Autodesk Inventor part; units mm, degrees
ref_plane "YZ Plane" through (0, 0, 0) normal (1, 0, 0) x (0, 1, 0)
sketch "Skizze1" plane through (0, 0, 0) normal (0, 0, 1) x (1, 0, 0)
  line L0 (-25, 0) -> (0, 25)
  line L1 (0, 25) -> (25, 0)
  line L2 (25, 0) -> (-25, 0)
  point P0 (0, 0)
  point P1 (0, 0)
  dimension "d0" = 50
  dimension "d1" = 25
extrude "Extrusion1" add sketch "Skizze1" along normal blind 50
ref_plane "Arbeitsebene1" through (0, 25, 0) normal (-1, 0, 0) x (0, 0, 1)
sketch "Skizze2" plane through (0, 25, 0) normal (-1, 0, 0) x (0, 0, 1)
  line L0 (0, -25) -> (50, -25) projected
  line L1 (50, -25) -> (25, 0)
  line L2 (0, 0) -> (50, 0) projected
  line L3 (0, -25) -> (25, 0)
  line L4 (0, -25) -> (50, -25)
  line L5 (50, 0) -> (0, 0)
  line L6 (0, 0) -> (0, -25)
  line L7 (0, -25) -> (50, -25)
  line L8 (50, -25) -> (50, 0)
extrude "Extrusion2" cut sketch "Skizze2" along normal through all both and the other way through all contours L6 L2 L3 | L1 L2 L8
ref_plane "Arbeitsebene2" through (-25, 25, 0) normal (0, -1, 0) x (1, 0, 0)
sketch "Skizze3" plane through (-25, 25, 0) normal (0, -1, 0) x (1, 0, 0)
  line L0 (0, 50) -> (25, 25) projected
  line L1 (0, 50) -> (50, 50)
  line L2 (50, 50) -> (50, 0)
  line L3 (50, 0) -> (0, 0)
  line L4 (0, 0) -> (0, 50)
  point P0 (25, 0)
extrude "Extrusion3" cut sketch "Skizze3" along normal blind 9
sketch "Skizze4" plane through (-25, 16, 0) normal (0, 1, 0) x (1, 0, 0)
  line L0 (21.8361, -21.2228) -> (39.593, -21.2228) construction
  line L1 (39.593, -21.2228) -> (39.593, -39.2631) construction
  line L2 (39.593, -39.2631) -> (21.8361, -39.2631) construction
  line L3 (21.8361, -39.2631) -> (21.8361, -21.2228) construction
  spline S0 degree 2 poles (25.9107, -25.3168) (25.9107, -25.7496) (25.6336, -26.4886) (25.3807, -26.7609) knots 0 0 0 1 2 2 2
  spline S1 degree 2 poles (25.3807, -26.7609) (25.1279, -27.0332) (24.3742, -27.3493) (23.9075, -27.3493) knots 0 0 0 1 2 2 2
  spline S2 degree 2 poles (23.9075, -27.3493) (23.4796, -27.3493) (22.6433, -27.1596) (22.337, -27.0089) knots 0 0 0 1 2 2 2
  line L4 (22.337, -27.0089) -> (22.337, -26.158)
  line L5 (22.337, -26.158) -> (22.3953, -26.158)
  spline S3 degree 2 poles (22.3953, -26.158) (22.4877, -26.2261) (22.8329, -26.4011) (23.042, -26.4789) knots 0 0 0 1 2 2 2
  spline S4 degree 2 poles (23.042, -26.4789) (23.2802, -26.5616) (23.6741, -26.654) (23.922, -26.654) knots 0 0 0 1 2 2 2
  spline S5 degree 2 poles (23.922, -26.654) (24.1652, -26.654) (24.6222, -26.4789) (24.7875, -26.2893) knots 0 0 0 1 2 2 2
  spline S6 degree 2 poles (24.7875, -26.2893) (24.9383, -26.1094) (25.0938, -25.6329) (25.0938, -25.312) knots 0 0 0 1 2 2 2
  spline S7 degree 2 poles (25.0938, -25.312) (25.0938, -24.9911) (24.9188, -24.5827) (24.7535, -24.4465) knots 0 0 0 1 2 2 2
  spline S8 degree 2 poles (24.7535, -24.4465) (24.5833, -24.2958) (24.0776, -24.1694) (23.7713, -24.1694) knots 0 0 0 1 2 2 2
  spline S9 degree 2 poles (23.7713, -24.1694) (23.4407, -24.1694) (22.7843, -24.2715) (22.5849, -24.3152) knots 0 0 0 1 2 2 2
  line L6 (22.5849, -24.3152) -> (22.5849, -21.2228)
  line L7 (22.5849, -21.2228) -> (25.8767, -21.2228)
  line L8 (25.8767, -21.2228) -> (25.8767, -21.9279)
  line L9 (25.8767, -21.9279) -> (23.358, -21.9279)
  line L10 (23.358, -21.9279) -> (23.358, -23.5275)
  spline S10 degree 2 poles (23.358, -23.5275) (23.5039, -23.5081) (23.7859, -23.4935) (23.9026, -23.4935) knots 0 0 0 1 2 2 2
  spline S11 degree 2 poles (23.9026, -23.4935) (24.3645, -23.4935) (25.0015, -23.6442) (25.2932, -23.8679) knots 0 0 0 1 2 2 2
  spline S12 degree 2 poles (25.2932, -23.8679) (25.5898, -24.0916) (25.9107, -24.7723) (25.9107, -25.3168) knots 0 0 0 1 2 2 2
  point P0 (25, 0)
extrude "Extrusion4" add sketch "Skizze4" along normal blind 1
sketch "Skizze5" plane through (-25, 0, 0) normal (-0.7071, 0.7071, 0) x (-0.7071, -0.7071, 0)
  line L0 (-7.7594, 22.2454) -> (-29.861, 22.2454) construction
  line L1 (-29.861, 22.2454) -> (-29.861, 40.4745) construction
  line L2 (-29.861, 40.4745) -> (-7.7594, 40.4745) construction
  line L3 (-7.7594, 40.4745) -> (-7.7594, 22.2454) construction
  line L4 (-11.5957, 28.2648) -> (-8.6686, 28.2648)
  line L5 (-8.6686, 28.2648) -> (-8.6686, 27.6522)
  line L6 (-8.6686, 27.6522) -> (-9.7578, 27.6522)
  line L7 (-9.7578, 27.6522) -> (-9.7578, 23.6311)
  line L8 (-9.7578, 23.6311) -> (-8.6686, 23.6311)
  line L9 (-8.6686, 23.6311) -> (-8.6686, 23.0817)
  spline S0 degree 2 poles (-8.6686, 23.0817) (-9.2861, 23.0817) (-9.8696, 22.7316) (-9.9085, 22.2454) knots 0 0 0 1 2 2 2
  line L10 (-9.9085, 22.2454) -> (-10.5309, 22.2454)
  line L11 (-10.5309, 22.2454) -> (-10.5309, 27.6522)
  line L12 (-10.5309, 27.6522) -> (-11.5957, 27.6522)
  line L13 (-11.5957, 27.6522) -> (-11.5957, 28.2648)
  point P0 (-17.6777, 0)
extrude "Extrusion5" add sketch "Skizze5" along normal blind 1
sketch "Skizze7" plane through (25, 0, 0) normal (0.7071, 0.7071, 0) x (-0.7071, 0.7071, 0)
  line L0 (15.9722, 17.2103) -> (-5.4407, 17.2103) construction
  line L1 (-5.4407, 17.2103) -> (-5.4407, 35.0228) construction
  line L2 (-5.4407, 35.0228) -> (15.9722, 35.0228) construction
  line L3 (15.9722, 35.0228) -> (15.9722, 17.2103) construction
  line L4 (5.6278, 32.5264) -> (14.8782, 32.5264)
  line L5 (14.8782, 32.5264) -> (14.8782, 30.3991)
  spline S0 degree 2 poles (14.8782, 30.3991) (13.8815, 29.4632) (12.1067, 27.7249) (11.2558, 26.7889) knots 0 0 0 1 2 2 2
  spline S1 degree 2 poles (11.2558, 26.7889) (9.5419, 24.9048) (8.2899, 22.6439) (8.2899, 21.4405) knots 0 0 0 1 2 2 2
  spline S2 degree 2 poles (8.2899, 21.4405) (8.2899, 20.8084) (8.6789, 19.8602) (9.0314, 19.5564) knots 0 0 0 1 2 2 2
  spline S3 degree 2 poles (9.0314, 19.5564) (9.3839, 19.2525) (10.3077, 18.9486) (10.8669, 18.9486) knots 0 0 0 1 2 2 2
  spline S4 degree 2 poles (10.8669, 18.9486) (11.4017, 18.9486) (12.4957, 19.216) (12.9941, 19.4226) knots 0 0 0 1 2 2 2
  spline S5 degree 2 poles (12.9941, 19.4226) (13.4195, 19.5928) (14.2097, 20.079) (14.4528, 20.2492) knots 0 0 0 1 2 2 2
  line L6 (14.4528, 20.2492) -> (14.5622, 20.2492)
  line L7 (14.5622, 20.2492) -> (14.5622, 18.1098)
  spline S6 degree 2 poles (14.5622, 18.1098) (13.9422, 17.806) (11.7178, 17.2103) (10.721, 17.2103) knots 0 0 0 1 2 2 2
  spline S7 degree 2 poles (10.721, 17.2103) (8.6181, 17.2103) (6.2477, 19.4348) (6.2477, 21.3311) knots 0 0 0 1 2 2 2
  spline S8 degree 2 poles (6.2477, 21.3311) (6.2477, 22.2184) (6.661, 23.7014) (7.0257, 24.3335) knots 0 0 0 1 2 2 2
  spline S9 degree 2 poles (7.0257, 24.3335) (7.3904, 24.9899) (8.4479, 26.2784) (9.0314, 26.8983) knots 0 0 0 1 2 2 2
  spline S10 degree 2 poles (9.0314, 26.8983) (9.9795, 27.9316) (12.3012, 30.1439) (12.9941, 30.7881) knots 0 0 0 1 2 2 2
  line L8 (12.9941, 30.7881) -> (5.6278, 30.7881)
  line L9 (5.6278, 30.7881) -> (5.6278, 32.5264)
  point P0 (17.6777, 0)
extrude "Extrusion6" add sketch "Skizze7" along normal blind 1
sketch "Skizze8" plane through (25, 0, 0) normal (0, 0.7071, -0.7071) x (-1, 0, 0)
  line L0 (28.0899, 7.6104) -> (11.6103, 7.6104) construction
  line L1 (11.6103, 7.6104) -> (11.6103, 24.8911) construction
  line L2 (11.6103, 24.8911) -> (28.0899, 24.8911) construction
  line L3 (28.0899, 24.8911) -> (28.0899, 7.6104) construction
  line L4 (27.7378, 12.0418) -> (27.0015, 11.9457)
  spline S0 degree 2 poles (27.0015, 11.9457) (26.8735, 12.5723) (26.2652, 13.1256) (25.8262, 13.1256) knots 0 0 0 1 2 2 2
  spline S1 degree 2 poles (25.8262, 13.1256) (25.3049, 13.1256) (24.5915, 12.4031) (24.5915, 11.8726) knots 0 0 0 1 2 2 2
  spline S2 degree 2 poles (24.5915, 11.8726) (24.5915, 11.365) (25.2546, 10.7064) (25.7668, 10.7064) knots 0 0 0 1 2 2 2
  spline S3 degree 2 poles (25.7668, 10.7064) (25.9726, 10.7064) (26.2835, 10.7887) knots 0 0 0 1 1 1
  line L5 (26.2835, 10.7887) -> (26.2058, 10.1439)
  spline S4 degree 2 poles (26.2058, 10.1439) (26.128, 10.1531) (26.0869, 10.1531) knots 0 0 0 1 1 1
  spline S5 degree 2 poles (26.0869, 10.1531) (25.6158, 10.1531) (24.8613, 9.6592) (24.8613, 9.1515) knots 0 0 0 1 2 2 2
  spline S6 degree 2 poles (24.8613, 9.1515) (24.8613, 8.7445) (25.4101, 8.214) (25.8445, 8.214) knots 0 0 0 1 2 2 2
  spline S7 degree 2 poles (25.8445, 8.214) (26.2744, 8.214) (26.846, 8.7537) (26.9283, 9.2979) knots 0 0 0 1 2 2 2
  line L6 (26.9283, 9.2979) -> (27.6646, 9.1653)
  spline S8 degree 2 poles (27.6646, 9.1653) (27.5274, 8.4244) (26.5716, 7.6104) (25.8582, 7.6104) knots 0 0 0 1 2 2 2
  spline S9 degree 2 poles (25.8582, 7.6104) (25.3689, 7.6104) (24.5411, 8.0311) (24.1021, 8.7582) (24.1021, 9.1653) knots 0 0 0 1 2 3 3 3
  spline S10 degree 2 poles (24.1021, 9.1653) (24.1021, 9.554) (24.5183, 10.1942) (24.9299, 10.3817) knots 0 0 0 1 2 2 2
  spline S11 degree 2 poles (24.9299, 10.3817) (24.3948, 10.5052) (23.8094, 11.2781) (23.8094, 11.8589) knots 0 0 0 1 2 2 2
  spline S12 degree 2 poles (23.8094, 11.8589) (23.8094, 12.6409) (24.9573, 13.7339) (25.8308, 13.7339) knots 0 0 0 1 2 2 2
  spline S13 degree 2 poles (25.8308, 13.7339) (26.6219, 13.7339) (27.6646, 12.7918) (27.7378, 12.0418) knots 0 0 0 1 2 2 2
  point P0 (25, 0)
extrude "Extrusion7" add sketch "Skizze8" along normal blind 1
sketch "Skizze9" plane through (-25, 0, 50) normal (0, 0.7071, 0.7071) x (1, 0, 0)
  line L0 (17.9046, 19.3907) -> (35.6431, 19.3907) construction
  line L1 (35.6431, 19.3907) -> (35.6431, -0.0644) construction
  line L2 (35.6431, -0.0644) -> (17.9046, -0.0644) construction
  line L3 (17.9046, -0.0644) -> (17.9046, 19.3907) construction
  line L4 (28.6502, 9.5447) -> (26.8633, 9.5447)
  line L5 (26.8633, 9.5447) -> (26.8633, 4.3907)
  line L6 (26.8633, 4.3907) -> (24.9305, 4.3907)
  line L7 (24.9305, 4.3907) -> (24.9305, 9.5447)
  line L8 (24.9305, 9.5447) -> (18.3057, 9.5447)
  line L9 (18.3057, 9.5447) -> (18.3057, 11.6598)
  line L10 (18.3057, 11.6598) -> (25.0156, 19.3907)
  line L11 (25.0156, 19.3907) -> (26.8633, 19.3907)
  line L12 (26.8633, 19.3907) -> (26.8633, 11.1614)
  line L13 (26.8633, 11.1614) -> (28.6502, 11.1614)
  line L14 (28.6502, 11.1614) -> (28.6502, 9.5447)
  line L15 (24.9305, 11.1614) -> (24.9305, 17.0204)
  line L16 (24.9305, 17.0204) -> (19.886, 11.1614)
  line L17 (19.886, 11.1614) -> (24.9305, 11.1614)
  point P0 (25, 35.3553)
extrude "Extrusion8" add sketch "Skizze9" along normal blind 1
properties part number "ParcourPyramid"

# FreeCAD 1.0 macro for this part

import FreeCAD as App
import Part
import Sketcher

doc = App.newDocument("Part")
body = doc.addObject("PartDesign::Body", "Body")

sketch1 = body.newObject("Sketcher::SketchObject", "Sketch")
sketch1.AttachmentSupport = (doc.getObject("XY_Plane"), [""])
sketch1.MapMode = "FlatFace"
sketch1.addGeometry([
    Part.LineSegment(App.Vector(0, 25, 0), App.Vector(-25, 0, 0)),
    Part.LineSegment(App.Vector(-25, 0, 0), App.Vector(25, 0, 0)),
    Part.LineSegment(App.Vector(25, 0, 0), App.Vector(0, 25, 0)),
], False)
sketch1.addConstraint([
    Sketcher.Constraint("Coincident", 0, 2, 1, 1),
    Sketcher.Constraint("Coincident", 1, 2, 2, 1),
    Sketcher.Constraint("Coincident", 2, 2, 0, 1),
    Sketcher.Constraint("Horizontal", 1),
    Sketcher.Constraint("Symmetric", 0, 2, 1, 2, -1, 1),
    Sketcher.Constraint("PointOnObject", 2, 2, -2),
    Sketcher.Constraint("Perpendicular", 0, 2),
    Sketcher.Constraint("DistanceX", 1, 1, 1, 2, 50.0),
])
pad1 = body.newObject("PartDesign::Pad", "Pad")
pad1.Profile = sketch1
pad1.Length = 50

sketch2 = body.newObject("Sketcher::SketchObject", "Sketch001")
sketch2.AttachmentSupport = (doc.getObject("YZ_Plane"), [""])
sketch2.MapMode = "FlatFace"
sketch2.addGeometry([
    Part.LineSegment(App.Vector(25, 0, 0), App.Vector(0, 0, 0)),
    Part.LineSegment(App.Vector(0, 0, 0), App.Vector(25, 25, 0)),
    Part.LineSegment(App.Vector(25, 25, 0), App.Vector(25, 0, 0)),
    Part.LineSegment(App.Vector(25, 25, 0), App.Vector(0, 50, 0)),
    Part.LineSegment(App.Vector(0, 50, 0), App.Vector(25, 50, 0)),
    Part.LineSegment(App.Vector(25, 50, 0), App.Vector(25, 25, 0)),
], False)
sketch2.addConstraint([
    Sketcher.Constraint("Coincident", 0, 2, 1, 1),
    Sketcher.Constraint("Coincident", 1, 2, 2, 1),
    Sketcher.Constraint("Coincident", 2, 2, 0, 1),
    Sketcher.Constraint("Coincident", 3, 2, 4, 1),
    Sketcher.Constraint("Coincident", 4, 2, 5, 1),
    Sketcher.Constraint("Coincident", 5, 2, 3, 1),
    Sketcher.Constraint("Horizontal", 0),
    Sketcher.Constraint("Vertical", 2),
    Sketcher.Constraint("Horizontal", 4),
    Sketcher.Constraint("Vertical", 5),
    Sketcher.Constraint("Coincident", 0, 2, -1, 1),
    Sketcher.Constraint("Coincident", 5, 2, 1, 2),
    Sketcher.Constraint("PointOnObject", 3, 2, -2),
    Sketcher.Constraint("Perpendicular", 1, 3),
    Sketcher.Constraint("Equal", 4, 2),
    Sketcher.Constraint("DistanceX", 0, 2, 0, 1, 25.0),
])
pocket1 = body.newObject("PartDesign::Pocket", "Pocket")
pocket1.Profile = sketch2
pocket1.Type = "ThroughAll"
pocket1.Midplane = True

sketch3 = body.newObject("Sketcher::SketchObject", "Sketch002")
sketch3.AttachmentSupport = (doc.getObject("XZ_Plane"), [""])
sketch3.MapMode = "FlatFace"
sketch3.AttachmentOffset = App.Placement(App.Vector(0, 0, -25), App.Rotation())
sketch3.addGeometry([
    Part.LineSegment(App.Vector(25, 50, 0), App.Vector(-25, 50, 0)),
    Part.LineSegment(App.Vector(-25, 50, 0), App.Vector(-25, 0, 0)),
    Part.LineSegment(App.Vector(-25, 0, 0), App.Vector(25, 0, 0)),
    Part.LineSegment(App.Vector(25, 0, 0), App.Vector(25, 50, 0)),
], False)
sketch3.addConstraint([
    Sketcher.Constraint("Coincident", 0, 2, 1, 1),
    Sketcher.Constraint("Coincident", 1, 2, 2, 1),
    Sketcher.Constraint("Coincident", 2, 2, 3, 1),
    Sketcher.Constraint("Coincident", 3, 2, 0, 1),
    Sketcher.Constraint("Horizontal", 0),
    Sketcher.Constraint("Vertical", 1),
    Sketcher.Constraint("Horizontal", 2),
    Sketcher.Constraint("Vertical", 3),
    Sketcher.Constraint("Symmetric", 1, 2, 2, 2, -1, 1),
    Sketcher.Constraint("Equal", 2, 1),
    Sketcher.Constraint("DistanceX", 0, 2, 0, 1, 50.0),
])
pocket2 = body.newObject("PartDesign::Pocket", "Pocket001")
pocket2.Profile = sketch3
pocket2.Length = 9
pocket2.Reversed = True

sketch4 = body.newObject("Sketcher::SketchObject", "Sketch003")
sketch4.AttachmentSupport = (doc.getObject("XZ_Plane"), [""])
sketch4.MapMode = "FlatFace"
sketch4.AttachmentOffset = App.Placement(App.Vector(0, 0, -16), App.Rotation())
sketch4.addGeometry([
    Part.BSplineCurve([App.Vector(0.9107, 25.3168, 0), App.Vector(0.9107, 25.7496, 0), App.Vector(0.6336, 26.4886, 0), App.Vector(0.3807, 26.7609, 0)], [3, 1, 3], [0, 1, 2], False, 2, [1, 1, 1, 1], False),
    Part.BSplineCurve([App.Vector(0.2932, 23.8679, 0), App.Vector(0.5898, 24.0916, 0), App.Vector(0.9107, 24.7723, 0), App.Vector(0.9107, 25.3168, 0)], [3, 1, 3], [0, 1, 2], False, 2, [1, 1, 1, 1], False),
    Part.BSplineCurve([App.Vector(-1.0974, 23.4935, 0), App.Vector(-0.6355, 23.4935, 0), App.Vector(0.0015, 23.6442, 0), App.Vector(0.2932, 23.8679, 0)], [3, 1, 3], [0, 1, 2], False, 2, [1, 1, 1, 1], False),
    Part.BSplineCurve([App.Vector(-1.642, 23.5275, 0), App.Vector(-1.4961, 23.5081, 0), App.Vector(-1.2141, 23.4935, 0), App.Vector(-1.0974, 23.4935, 0)], [3, 1, 3], [0, 1, 2], False, 2, [1, 1, 1, 1], False),
    Part.LineSegment(App.Vector(-1.642, 23.5275, 0), App.Vector(-1.642, 21.9279, 0)),
    Part.LineSegment(App.Vector(-1.642, 21.9279, 0), App.Vector(0.8767, 21.9279, 0)),
    Part.LineSegment(App.Vector(0.8767, 21.9279, 0), App.Vector(0.8767, 21.2228, 0)),
    Part.LineSegment(App.Vector(0.8767, 21.2228, 0), App.Vector(-2.4151, 21.2228, 0)),
    Part.LineSegment(App.Vector(-2.4151, 21.2228, 0), App.Vector(-2.4151, 24.3152, 0)),
    Part.BSplineCurve([App.Vector(-1.2287, 24.1694, 0), App.Vector(-1.5593, 24.1694, 0), App.Vector(-2.2157, 24.2715, 0), App.Vector(-2.4151, 24.3152, 0)], [3, 1, 3], [0, 1, 2], False, 2, [1, 1, 1, 1], False),
    Part.BSplineCurve([App.Vector(-0.2465, 24.4465, 0), App.Vector(-0.4167, 24.2958, 0), App.Vector(-0.9224, 24.1694, 0), App.Vector(-1.2287, 24.1694, 0)], [3, 1, 3], [0, 1, 2], False, 2, [1, 1, 1, 1], False),
    Part.BSplineCurve([App.Vector(0.0938, 25.312, 0), App.Vector(0.0938, 24.9911, 0), App.Vector(-0.0812, 24.5827, 0), App.Vector(-0.2465, 24.4465, 0)], [3, 1, 3], [0, 1, 2], False, 2, [1, 1, 1, 1], False),
    Part.BSplineCurve([App.Vector(-0.2125, 26.2893, 0), App.Vector(-0.0617, 26.1094, 0), App.Vector(0.0938, 25.6329, 0), App.Vector(0.0938, 25.312, 0)], [3, 1, 3], [0, 1, 2], False, 2, [1, 1, 1, 1], False),
    Part.BSplineCurve([App.Vector(-1.078, 26.654, 0), App.Vector(-0.8348, 26.654, 0), App.Vector(-0.3778, 26.4789, 0), App.Vector(-0.2125, 26.2893, 0)], [3, 1, 3], [0, 1, 2], False, 2, [1, 1, 1, 1], False),
    Part.BSplineCurve([App.Vector(-1.958, 26.4789, 0), App.Vector(-1.7198, 26.5616, 0), App.Vector(-1.3259, 26.654, 0), App.Vector(-1.078, 26.654, 0)], [3, 1, 3], [0, 1, 2], False, 2, [1, 1, 1, 1], False),
    Part.BSplineCurve([App.Vector(-2.6047, 26.158, 0), App.Vector(-2.5123, 26.2261, 0), App.Vector(-2.1671, 26.4011, 0), App.Vector(-1.958, 26.4789, 0)], [3, 1, 3], [0, 1, 2], False, 2, [1, 1, 1, 1], False),
    Part.LineSegment(App.Vector(-2.6047, 26.158, 0), App.Vector(-2.663, 26.158, 0)),
    Part.LineSegment(App.Vector(-2.663, 26.158, 0), App.Vector(-2.663, 27.0089, 0)),
    Part.BSplineCurve([App.Vector(-1.0925, 27.3493, 0), App.Vector(-1.5204, 27.3493, 0), App.Vector(-2.3567, 27.1596, 0), App.Vector(-2.663, 27.0089, 0)], [3, 1, 3], [0, 1, 2], False, 2, [1, 1, 1, 1], False),
    Part.BSplineCurve([App.Vector(0.3807, 26.7609, 0), App.Vector(0.1279, 27.0332, 0), App.Vector(-0.6258, 27.3493, 0), App.Vector(-1.0925, 27.3493, 0)], [3, 1, 3], [0, 1, 2], False, 2, [1, 1, 1, 1], False),
], False)
sketch4.addConstraint([
    Sketcher.Constraint("Block", 0),
    Sketcher.Constraint("Block", 1),
    Sketcher.Constraint("Block", 2),
    Sketcher.Constraint("Block", 3),
    Sketcher.Constraint("Block", 9),
    Sketcher.Constraint("Block", 10),
    Sketcher.Constraint("Block", 11),
    Sketcher.Constraint("Block", 12),
    Sketcher.Constraint("Block", 13),
    Sketcher.Constraint("Block", 14),
    Sketcher.Constraint("Block", 15),
    Sketcher.Constraint("Block", 18),
    Sketcher.Constraint("Block", 19),
    Sketcher.Constraint("Coincident", 3, 1, 4, 1),
    Sketcher.Constraint("Coincident", 4, 2, 5, 1),
    Sketcher.Constraint("Coincident", 5, 2, 6, 1),
    Sketcher.Constraint("Coincident", 6, 2, 7, 1),
    Sketcher.Constraint("Coincident", 7, 2, 8, 1),
    Sketcher.Constraint("Coincident", 8, 2, 9, 2),
    Sketcher.Constraint("Coincident", 15, 1, 16, 1),
    Sketcher.Constraint("Coincident", 16, 2, 17, 1),
    Sketcher.Constraint("Coincident", 17, 2, 18, 2),
    Sketcher.Constraint("Vertical", 4),
    Sketcher.Constraint("Horizontal", 5),
    Sketcher.Constraint("Vertical", 6),
    Sketcher.Constraint("Horizontal", 7),
    Sketcher.Constraint("Vertical", 8),
    Sketcher.Constraint("Horizontal", 16),
    Sketcher.Constraint("Vertical", 17),
    Sketcher.Constraint("DistanceY", 6, 2, 6, 1, 0.705),
    Sketcher.Constraint("DistanceY", 4, 2, 16, 2, 4.23),
    Sketcher.Constraint("DistanceX", 5, 1, 5, 2, 2.5187),
])
pad2 = body.newObject("PartDesign::Pad", "Pad001")
pad2.Profile = sketch4
pad2.Length = 1
pad2.Reversed = True

sketch5 = body.newObject("Sketcher::SketchObject", "Sketch004")
sketch5.Placement = App.Placement(App.Vector(-25, 0, 0), App.Rotation(App.Vector(-0.707106781, -0.707106781, 0), App.Vector(0, 0, 0.999999999), App.Vector(-0.707106781, 0.707106781, 0), "ZXY"))
sketch5.addGeometry([
    Part.LineSegment(App.Vector(-8.6686, 28.2648, 0), App.Vector(-11.5957, 28.2648, 0)),
    Part.LineSegment(App.Vector(-11.5957, 28.2648, 0), App.Vector(-11.5957, 27.6522, 0)),
    Part.LineSegment(App.Vector(-11.5957, 27.6522, 0), App.Vector(-10.5309, 27.6522, 0)),
    Part.LineSegment(App.Vector(-10.5309, 27.6522, 0), App.Vector(-10.5309, 22.2454, 0)),
    Part.LineSegment(App.Vector(-10.5309, 22.2454, 0), App.Vector(-9.9085, 22.2454, 0)),
    Part.BSplineCurve([App.Vector(-8.6686, 23.0817, 0), App.Vector(-9.2861, 23.0817, 0), App.Vector(-9.8696, 22.7316, 0), App.Vector(-9.9085, 22.2454, 0)], [3, 1, 3], [0, 1, 2], False, 2, [1, 1, 1, 1], False),
    Part.LineSegment(App.Vector(-8.6686, 23.0817, 0), App.Vector(-8.6686, 23.6311, 0)),
    Part.LineSegment(App.Vector(-8.6686, 23.6311, 0), App.Vector(-9.7578, 23.6311, 0)),
    Part.LineSegment(App.Vector(-9.7578, 23.6311, 0), App.Vector(-9.7578, 27.6522, 0)),
    Part.LineSegment(App.Vector(-9.7578, 27.6522, 0), App.Vector(-8.6686, 27.6522, 0)),
    Part.LineSegment(App.Vector(-8.6686, 27.6522, 0), App.Vector(-8.6686, 28.2648, 0)),
], False)
sketch5.addConstraint([
    Sketcher.Constraint("Block", 5),
    Sketcher.Constraint("Coincident", 0, 2, 1, 1),
    Sketcher.Constraint("Coincident", 1, 2, 2, 1),
    Sketcher.Constraint("Coincident", 2, 2, 3, 1),
    Sketcher.Constraint("Coincident", 3, 2, 4, 1),
    Sketcher.Constraint("Coincident", 4, 2, 5, 2),
    Sketcher.Constraint("Coincident", 5, 1, 6, 1),
    Sketcher.Constraint("Coincident", 6, 2, 7, 1),
    Sketcher.Constraint("Coincident", 7, 2, 8, 1),
    Sketcher.Constraint("Coincident", 8, 2, 9, 1),
    Sketcher.Constraint("Coincident", 9, 2, 10, 1),
    Sketcher.Constraint("Coincident", 10, 2, 0, 1),
    Sketcher.Constraint("Horizontal", 0),
    Sketcher.Constraint("Vertical", 1),
    Sketcher.Constraint("Horizontal", 2),
    Sketcher.Constraint("Vertical", 3),
    Sketcher.Constraint("Horizontal", 4),
    Sketcher.Constraint("Vertical", 6),
    Sketcher.Constraint("Horizontal", 7),
    Sketcher.Constraint("Vertical", 8),
    Sketcher.Constraint("Horizontal", 9),
    Sketcher.Constraint("Vertical", 10),
    Sketcher.Constraint("Horizontal", 2, 2, 8, 2),
    Sketcher.Constraint("Vertical", 6, 2, 9, 2),
    Sketcher.Constraint("DistanceX", 0, 2, 0, 1, 2.927),
    Sketcher.Constraint("DistanceY", 8, 1, 8, 2, 4.021),
    Sketcher.Constraint("DistanceX", 2, 1, 2, 2, 1.0648),
    Sketcher.Constraint("DistanceX", 7, 2, 7, 1, 1.0892),
    Sketcher.Constraint("DistanceY", 1, 2, 1, 1, 0.6126),
    Sketcher.Constraint("DistanceY", 3, 2, 3, 1, 5.4068),
])
pad3 = body.newObject("PartDesign::Pad", "Pad002")
pad3.Profile = sketch5
pad3.Length = 1

sketch6 = body.newObject("Sketcher::SketchObject", "Sketch005")
sketch6.Placement = App.Placement(App.Vector(25, 0, 0), App.Rotation(App.Vector(-0.707106781, 0.707106781, 0), App.Vector(0, 0, 0.999999999), App.Vector(0.707106781, 0.707106781, 0), "ZXY"))
sketch6.addGeometry([
    Part.LineSegment(App.Vector(14.8782, 32.5264, 0), App.Vector(5.6278, 32.5264, 0)),
    Part.LineSegment(App.Vector(5.6278, 32.5264, 0), App.Vector(5.6278, 30.7881, 0)),
    Part.LineSegment(App.Vector(5.6278, 30.7881, 0), App.Vector(12.9941, 30.7881, 0)),
    Part.BSplineCurve([App.Vector(9.0314, 26.8983, 0), App.Vector(9.9795, 27.9316, 0), App.Vector(12.3012, 30.1439, 0), App.Vector(12.9941, 30.7881, 0)], [3, 1, 3], [0, 1, 2], False, 2, [1, 1, 1, 1], False),
    Part.BSplineCurve([App.Vector(7.0257, 24.3335, 0), App.Vector(7.3904, 24.9899, 0), App.Vector(8.4479, 26.2784, 0), App.Vector(9.0314, 26.8983, 0)], [3, 1, 3], [0, 1, 2], False, 2, [1, 1, 1, 1], False),
    Part.BSplineCurve([App.Vector(6.2477, 21.3311, 0), App.Vector(6.2477, 22.2184, 0), App.Vector(6.661, 23.7014, 0), App.Vector(7.0257, 24.3335, 0)], [3, 1, 3], [0, 1, 2], False, 2, [1, 1, 1, 1], False),
    Part.BSplineCurve([App.Vector(10.721, 17.2103, 0), App.Vector(8.6181, 17.2103, 0), App.Vector(6.2477, 19.4348, 0), App.Vector(6.2477, 21.3311, 0)], [3, 1, 3], [0, 1, 2], False, 2, [1, 1, 1, 1], False),
    Part.BSplineCurve([App.Vector(14.5622, 18.1098, 0), App.Vector(13.9422, 17.806, 0), App.Vector(11.7178, 17.2103, 0), App.Vector(10.721, 17.2103, 0)], [3, 1, 3], [0, 1, 2], False, 2, [1, 1, 1, 1], False),
    Part.LineSegment(App.Vector(14.5622, 18.1098, 0), App.Vector(14.5622, 20.2492, 0)),
    Part.LineSegment(App.Vector(14.5622, 20.2492, 0), App.Vector(14.4528, 20.2492, 0)),
    Part.BSplineCurve([App.Vector(12.9941, 19.4226, 0), App.Vector(13.4195, 19.5928, 0), App.Vector(14.2097, 20.079, 0), App.Vector(14.4528, 20.2492, 0)], [3, 1, 3], [0, 1, 2], False, 2, [1, 1, 1, 1], False),
    Part.BSplineCurve([App.Vector(10.8669, 18.9486, 0), App.Vector(11.4017, 18.9486, 0), App.Vector(12.4957, 19.216, 0), App.Vector(12.9941, 19.4226, 0)], [3, 1, 3], [0, 1, 2], False, 2, [1, 1, 1, 1], False),
    Part.BSplineCurve([App.Vector(9.0314, 19.5564, 0), App.Vector(9.3839, 19.2525, 0), App.Vector(10.3077, 18.9486, 0), App.Vector(10.8669, 18.9486, 0)], [3, 1, 3], [0, 1, 2], False, 2, [1, 1, 1, 1], False),
    Part.BSplineCurve([App.Vector(8.2899, 21.4405, 0), App.Vector(8.2899, 20.8084, 0), App.Vector(8.6789, 19.8602, 0), App.Vector(9.0314, 19.5564, 0)], [3, 1, 3], [0, 1, 2], False, 2, [1, 1, 1, 1], False),
    Part.BSplineCurve([App.Vector(11.2558, 26.7889, 0), App.Vector(9.5419, 24.9048, 0), App.Vector(8.2899, 22.6439, 0), App.Vector(8.2899, 21.4405, 0)], [3, 1, 3], [0, 1, 2], False, 2, [1, 1, 1, 1], False),
    Part.BSplineCurve([App.Vector(14.8782, 30.3991, 0), App.Vector(13.8815, 29.4632, 0), App.Vector(12.1067, 27.7249, 0), App.Vector(11.2558, 26.7889, 0)], [3, 1, 3], [0, 1, 2], False, 2, [1, 1, 1, 1], False),
    Part.LineSegment(App.Vector(14.8782, 30.3991, 0), App.Vector(14.8782, 32.5264, 0)),
], False)
sketch6.addConstraint([
    Sketcher.Constraint("Block", 3),
    Sketcher.Constraint("Block", 4),
    Sketcher.Constraint("Block", 5),
    Sketcher.Constraint("Block", 6),
    Sketcher.Constraint("Block", 7),
    Sketcher.Constraint("Block", 10),
    Sketcher.Constraint("Block", 11),
    Sketcher.Constraint("Block", 12),
    Sketcher.Constraint("Block", 13),
    Sketcher.Constraint("Block", 14),
    Sketcher.Constraint("Block", 15),
    Sketcher.Constraint("Coincident", 0, 2, 1, 1),
    Sketcher.Constraint("Coincident", 1, 2, 2, 1),
    Sketcher.Constraint("Coincident", 2, 2, 3, 2),
    Sketcher.Constraint("Coincident", 7, 1, 8, 1),
    Sketcher.Constraint("Coincident", 8, 2, 9, 1),
    Sketcher.Constraint("Coincident", 9, 2, 10, 2),
    Sketcher.Constraint("Coincident", 15, 1, 16, 1),
    Sketcher.Constraint("Coincident", 16, 2, 0, 1),
    Sketcher.Constraint("Horizontal", 0),
    Sketcher.Constraint("Vertical", 1),
    Sketcher.Constraint("Horizontal", 2),
    Sketcher.Constraint("Vertical", 8),
    Sketcher.Constraint("Horizontal", 9),
    Sketcher.Constraint("Vertical", 16),
    Sketcher.Constraint("DistanceX", 0, 2, 0, 1, 9.2504),
    Sketcher.Constraint("DistanceY", 1, 2, 1, 1, 1.7383),
])
pad4 = body.newObject("PartDesign::Pad", "Pad003")
pad4.Profile = sketch6
pad4.Length = 1

sketch7 = body.newObject("Sketcher::SketchObject", "Sketch006")
sketch7.Placement = App.Placement(App.Vector(25, 0, 0), App.Rotation(App.Vector(-1, 0, 0), App.Vector(0, 0.707106781, 0.707106781), App.Vector(0, 0.707106781, -0.707106781), "ZXY"))
sketch7.addGeometry([
    Part.LineSegment(App.Vector(27.0015, 11.9457, 0), App.Vector(27.7378, 12.0418, 0)),
    Part.BSplineCurve([App.Vector(25.8308, 13.7339, 0), App.Vector(26.6219, 13.7339, 0), App.Vector(27.6646, 12.7918, 0), App.Vector(27.7378, 12.0418, 0)], [3, 1, 3], [0, 1, 2], False, 2, [1, 1, 1, 1], False),
    Part.BSplineCurve([App.Vector(23.8094, 11.8589, 0), App.Vector(23.8094, 12.6409, 0), App.Vector(24.9573, 13.7339, 0), App.Vector(25.8308, 13.7339, 0)], [3, 1, 3], [0, 1, 2], False, 2, [1, 1, 1, 1], False),
    Part.BSplineCurve([App.Vector(24.9299, 10.3817, 0), App.Vector(24.3948, 10.5052, 0), App.Vector(23.8094, 11.2781, 0), App.Vector(23.8094, 11.8589, 0)], [3, 1, 3], [0, 1, 2], False, 2, [1, 1, 1, 1], False),
    Part.BSplineCurve([App.Vector(24.1021, 9.1653, 0), App.Vector(24.1021, 9.554, 0), App.Vector(24.5183, 10.1942, 0), App.Vector(24.9299, 10.3817, 0)], [3, 1, 3], [0, 1, 2], False, 2, [1, 1, 1, 1], False),
    Part.BSplineCurve([App.Vector(25.8582, 7.6104, 0), App.Vector(25.3689, 7.6104, 0), App.Vector(24.5411, 8.0311, 0), App.Vector(24.1021, 8.7582, 0), App.Vector(24.1021, 9.1653, 0)], [3, 1, 1, 3], [0, 1, 2, 3], False, 2, [1, 1, 1, 1, 1], False),
    Part.BSplineCurve([App.Vector(27.6646, 9.1653, 0), App.Vector(27.5274, 8.4244, 0), App.Vector(26.5716, 7.6104, 0), App.Vector(25.8582, 7.6104, 0)], [3, 1, 3], [0, 1, 2], False, 2, [1, 1, 1, 1], False),
    Part.LineSegment(App.Vector(27.6646, 9.1653, 0), App.Vector(26.9283, 9.2979, 0)),
    Part.BSplineCurve([App.Vector(25.8445, 8.214, 0), App.Vector(26.2744, 8.214, 0), App.Vector(26.846, 8.7537, 0), App.Vector(26.9283, 9.2979, 0)], [3, 1, 3], [0, 1, 2], False, 2, [1, 1, 1, 1], False),
    Part.BSplineCurve([App.Vector(24.8613, 9.1515, 0), App.Vector(24.8613, 8.7445, 0), App.Vector(25.4101, 8.214, 0), App.Vector(25.8445, 8.214, 0)], [3, 1, 3], [0, 1, 2], False, 2, [1, 1, 1, 1], False),
    Part.BSplineCurve([App.Vector(26.0869, 10.1531, 0), App.Vector(25.6158, 10.1531, 0), App.Vector(24.8613, 9.6592, 0), App.Vector(24.8613, 9.1515, 0)], [3, 1, 3], [0, 1, 2], False, 2, [1, 1, 1, 1], False),
    Part.BSplineCurve([App.Vector(26.2058, 10.1439, 0), App.Vector(26.128, 10.1531, 0), App.Vector(26.0869, 10.1531, 0)], [3, 3], [0, 1], False, 2, [1, 1, 1], False),
    Part.LineSegment(App.Vector(26.2058, 10.1439, 0), App.Vector(26.2835, 10.7887, 0)),
    Part.BSplineCurve([App.Vector(25.7668, 10.7064, 0), App.Vector(25.9726, 10.7064, 0), App.Vector(26.2835, 10.7887, 0)], [3, 3], [0, 1], False, 2, [1, 1, 1], False),
    Part.BSplineCurve([App.Vector(24.5915, 11.8726, 0), App.Vector(24.5915, 11.365, 0), App.Vector(25.2546, 10.7064, 0), App.Vector(25.7668, 10.7064, 0)], [3, 1, 3], [0, 1, 2], False, 2, [1, 1, 1, 1], False),
    Part.BSplineCurve([App.Vector(25.8262, 13.1256, 0), App.Vector(25.3049, 13.1256, 0), App.Vector(24.5915, 12.4031, 0), App.Vector(24.5915, 11.8726, 0)], [3, 1, 3], [0, 1, 2], False, 2, [1, 1, 1, 1], False),
    Part.BSplineCurve([App.Vector(27.0015, 11.9457, 0), App.Vector(26.8735, 12.5723, 0), App.Vector(26.2652, 13.1256, 0), App.Vector(25.8262, 13.1256, 0)], [3, 1, 3], [0, 1, 2], False, 2, [1, 1, 1, 1], False),
], False)
sketch7.addConstraint([
    Sketcher.Constraint("Block", 1),
    Sketcher.Constraint("Block", 2),
    Sketcher.Constraint("Block", 3),
    Sketcher.Constraint("Block", 4),
    Sketcher.Constraint("Block", 5),
    Sketcher.Constraint("Block", 6),
    Sketcher.Constraint("Block", 8),
    Sketcher.Constraint("Block", 9),
    Sketcher.Constraint("Block", 10),
    Sketcher.Constraint("Block", 11),
    Sketcher.Constraint("Block", 13),
    Sketcher.Constraint("Block", 14),
    Sketcher.Constraint("Block", 15),
    Sketcher.Constraint("Block", 16),
    Sketcher.Constraint("Coincident", 0, 2, 1, 2),
    Sketcher.Constraint("Coincident", 6, 1, 7, 1),
    Sketcher.Constraint("Coincident", 7, 2, 8, 2),
    Sketcher.Constraint("Coincident", 11, 1, 12, 1),
    Sketcher.Constraint("Coincident", 12, 2, 13, 2),
    Sketcher.Constraint("Coincident", 16, 1, 0, 1),
])
pad5 = body.newObject("PartDesign::Pad", "Pad004")
pad5.Profile = sketch7
pad5.Length = 1

sketch8 = body.newObject("Sketcher::SketchObject", "Sketch007")
sketch8.Placement = App.Placement(App.Vector(-25, 0, 50), App.Rotation(App.Vector(1, 0, 0), App.Vector(0, 0.707106781, -0.707106781), App.Vector(0, 0.707106781, 0.707106781), "ZXY"))
sketch8.addGeometry([
    Part.LineSegment(App.Vector(26.9, 9.5, 0), App.Vector(28.7, 9.5, 0)),
    Part.LineSegment(App.Vector(28.7, 9.5, 0), App.Vector(28.7, 11.2, 0)),
    Part.LineSegment(App.Vector(28.7, 11.2, 0), App.Vector(26.9, 11.2, 0)),
    Part.LineSegment(App.Vector(26.9, 11.2, 0), App.Vector(26.9, 19.4, 0)),
    Part.LineSegment(App.Vector(26.9, 19.4, 0), App.Vector(25, 19.4, 0)),
    Part.LineSegment(App.Vector(25, 19.4, 0), App.Vector(18.3, 11.7, 0)),
    Part.LineSegment(App.Vector(18.3, 11.7, 0), App.Vector(18.3, 9.5, 0)),
    Part.LineSegment(App.Vector(18.3, 9.5, 0), App.Vector(24.9, 9.5, 0)),
    Part.LineSegment(App.Vector(24.9, 9.5, 0), App.Vector(24.9, 4.4, 0)),
    Part.LineSegment(App.Vector(24.9, 4.4, 0), App.Vector(26.9, 4.4, 0)),
    Part.LineSegment(App.Vector(26.9, 4.4, 0), App.Vector(26.9, 9.5, 0)),
    Part.LineSegment(App.Vector(24.9, 17, 0), App.Vector(24.9, 11.2, 0)),
    Part.LineSegment(App.Vector(24.9, 11.2, 0), App.Vector(19.9, 11.2, 0)),
    Part.LineSegment(App.Vector(19.9, 11.2, 0), App.Vector(24.9, 17, 0)),
], False)
sketch8.addConstraint([
    Sketcher.Constraint("Coincident", 0, 2, 1, 1),
    Sketcher.Constraint("Coincident", 1, 2, 2, 1),
    Sketcher.Constraint("Coincident", 2, 2, 3, 1),
    Sketcher.Constraint("Coincident", 3, 2, 4, 1),
    Sketcher.Constraint("Coincident", 4, 2, 5, 1),
    Sketcher.Constraint("Coincident", 5, 2, 6, 1),
    Sketcher.Constraint("Coincident", 6, 2, 7, 1),
    Sketcher.Constraint("Coincident", 7, 2, 8, 1),
    Sketcher.Constraint("Coincident", 8, 2, 9, 1),
    Sketcher.Constraint("Coincident", 9, 2, 10, 1),
    Sketcher.Constraint("Coincident", 10, 2, 0, 1),
    Sketcher.Constraint("Coincident", 11, 2, 12, 1),
    Sketcher.Constraint("Coincident", 12, 2, 13, 1),
    Sketcher.Constraint("Coincident", 13, 2, 11, 1),
    Sketcher.Constraint("Horizontal", 0),
    Sketcher.Constraint("Vertical", 1),
    Sketcher.Constraint("Horizontal", 2),
    Sketcher.Constraint("Vertical", 3),
    Sketcher.Constraint("Horizontal", 4),
    Sketcher.Constraint("Vertical", 6),
    Sketcher.Constraint("Horizontal", 7),
    Sketcher.Constraint("Vertical", 8),
    Sketcher.Constraint("Horizontal", 9),
    Sketcher.Constraint("Vertical", 10),
    Sketcher.Constraint("Vertical", 11),
    Sketcher.Constraint("Horizontal", 12),
    Sketcher.Constraint("Horizontal", 0, 2, 6, 2),
    Sketcher.Constraint("Horizontal", 2, 2, 11, 2),
    Sketcher.Constraint("Vertical", 3, 2, 9, 2),
    Sketcher.Constraint("Vertical", 8, 2, 11, 2),
    Sketcher.Constraint("DistanceX", 0, 1, 0, 2, 1.787),
    Sketcher.Constraint("DistanceY", 6, 2, 6, 1, 2.115),
    Sketcher.Constraint("DistanceY", 8, 2, 8, 1, 5.154),
    Sketcher.Constraint("DistanceY", 11, 2, 11, 1, 5.859),
    Sketcher.Constraint("DistanceX", 5, 2, 4, 2, 6.71),
    Sketcher.Constraint("DistanceX", 4, 2, 4, 1, 1.8477),
    Sketcher.Constraint("DistanceX", 7, 1, 7, 2, 6.6248),
    Sketcher.Constraint("DistanceX", 12, 2, 12, 1, 5.0445),
    Sketcher.Constraint("DistanceY", 1, 1, 1, 2, 1.6167),
    Sketcher.Constraint("DistanceY", 3, 1, 3, 2, 8.2293),
    Sketcher.Constraint("DistanceX", -1, 1, 12, 2, 19.886),
    Sketcher.Constraint("DistanceY", -1, 1, 0, 2, 9.5447),
])
pad6 = body.newObject("PartDesign::Pad", "Pad005")
pad6.Profile = sketch8
pad6.Length = 1

doc.recompute()
